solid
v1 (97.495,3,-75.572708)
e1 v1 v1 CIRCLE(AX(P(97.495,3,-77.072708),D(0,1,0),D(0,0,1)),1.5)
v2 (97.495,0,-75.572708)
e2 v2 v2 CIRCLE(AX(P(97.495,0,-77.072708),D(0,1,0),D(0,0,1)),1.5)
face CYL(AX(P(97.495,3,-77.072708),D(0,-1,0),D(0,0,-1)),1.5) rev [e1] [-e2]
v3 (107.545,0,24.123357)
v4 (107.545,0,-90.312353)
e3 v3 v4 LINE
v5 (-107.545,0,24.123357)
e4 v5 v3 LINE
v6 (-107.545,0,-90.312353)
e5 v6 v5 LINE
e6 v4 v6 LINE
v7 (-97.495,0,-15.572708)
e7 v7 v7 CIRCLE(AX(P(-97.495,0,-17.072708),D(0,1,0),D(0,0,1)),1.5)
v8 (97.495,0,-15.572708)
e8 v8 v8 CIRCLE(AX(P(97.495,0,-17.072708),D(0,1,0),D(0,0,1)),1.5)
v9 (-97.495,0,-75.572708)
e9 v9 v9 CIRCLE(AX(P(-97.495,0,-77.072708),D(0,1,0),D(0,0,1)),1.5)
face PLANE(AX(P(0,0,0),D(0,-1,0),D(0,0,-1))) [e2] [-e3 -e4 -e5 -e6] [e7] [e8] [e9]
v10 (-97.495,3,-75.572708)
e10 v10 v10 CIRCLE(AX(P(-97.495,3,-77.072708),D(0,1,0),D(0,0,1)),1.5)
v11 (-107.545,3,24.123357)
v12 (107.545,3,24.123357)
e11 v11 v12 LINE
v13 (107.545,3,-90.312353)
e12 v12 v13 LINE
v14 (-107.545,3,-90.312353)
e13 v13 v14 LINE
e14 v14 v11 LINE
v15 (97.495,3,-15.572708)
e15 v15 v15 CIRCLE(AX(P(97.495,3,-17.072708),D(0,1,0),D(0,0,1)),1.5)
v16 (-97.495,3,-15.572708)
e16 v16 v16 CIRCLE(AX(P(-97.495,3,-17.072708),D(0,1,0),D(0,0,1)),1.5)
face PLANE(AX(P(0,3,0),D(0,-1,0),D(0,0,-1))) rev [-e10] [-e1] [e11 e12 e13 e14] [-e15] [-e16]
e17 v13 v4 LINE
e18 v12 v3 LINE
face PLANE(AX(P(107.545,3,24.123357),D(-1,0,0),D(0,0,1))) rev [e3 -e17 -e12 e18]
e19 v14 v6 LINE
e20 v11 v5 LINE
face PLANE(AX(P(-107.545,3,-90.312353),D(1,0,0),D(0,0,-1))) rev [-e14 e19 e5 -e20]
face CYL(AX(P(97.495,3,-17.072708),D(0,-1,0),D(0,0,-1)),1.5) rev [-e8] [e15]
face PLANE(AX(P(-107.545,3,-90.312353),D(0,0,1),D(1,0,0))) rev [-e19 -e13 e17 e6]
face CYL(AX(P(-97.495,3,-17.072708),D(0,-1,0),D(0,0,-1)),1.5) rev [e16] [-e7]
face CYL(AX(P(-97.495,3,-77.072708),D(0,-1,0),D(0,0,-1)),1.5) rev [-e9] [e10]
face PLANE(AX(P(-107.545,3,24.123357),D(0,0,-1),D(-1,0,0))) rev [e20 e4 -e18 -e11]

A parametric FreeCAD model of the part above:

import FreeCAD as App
import Part
import Sketcher

doc = App.newDocument("Part")
body = doc.addObject("PartDesign::Body", "Body")

sketch1 = doc.addObject("Sketcher::SketchObject", "Sketch")
body.addObject(sketch1)
sketch1.AttachmentSupport = (doc.XZ_Plane, [""])
sketch1.MapMode = "FlatFace"
sketch1.addGeometry([
    Part.LineSegment(App.Vector(-107.5, -90.3, 0), App.Vector(-107.5, 24.1, 0)),
    Part.LineSegment(App.Vector(-107.5, 24.1, 0), App.Vector(107.5, 24.1, 0)),
    Part.LineSegment(App.Vector(107.5, 24.1, 0), App.Vector(107.5, -90.3, 0)),
    Part.LineSegment(App.Vector(107.5, -90.3, 0), App.Vector(-107.5, -90.3, 0)),
    Part.Circle(App.Vector(-97.5, -17.1, 0), App.Vector(0, 0, 1), 1.5),
    Part.Circle(App.Vector(97.5, -17.1, 0), App.Vector(0, 0, 1), 1.5),
    Part.Circle(App.Vector(-97.5, -77.1, 0), App.Vector(0, 0, 1), 1.5),
    Part.Circle(App.Vector(97.5, -77.1, 0), App.Vector(0, 0, 1), 1.5),
], False)
sketch1.addConstraint([
    Sketcher.Constraint("Coincident", 0, 2, 1, 1),
    Sketcher.Constraint("Coincident", 1, 2, 2, 1),
    Sketcher.Constraint("Coincident", 2, 2, 3, 1),
    Sketcher.Constraint("Coincident", 3, 2, 0, 1),
    Sketcher.Constraint("Vertical", 0),
    Sketcher.Constraint("Horizontal", 1),
    Sketcher.Constraint("Vertical", 2),
    Sketcher.Constraint("Horizontal", 3),
    Sketcher.Constraint("Equal", 4, 5),
    Sketcher.Constraint("Equal", 5, 6),
    Sketcher.Constraint("Equal", 6, 7),
    Sketcher.Constraint("Symmetric", 4, 3, 5, 3, -2),
    Sketcher.Constraint("Symmetric", 6, 3, 7, 3, -2),
    Sketcher.Constraint("Vertical", 4, 3, 6, 3),
    Sketcher.Constraint("Diameter", 4, 3.0),
    Sketcher.Constraint("DistanceY", 6, 3, 4, 3, 60.0),
    Sketcher.Constraint("DistanceX", 1, 1, 1, 2, 215.09),
    Sketcher.Constraint("DistanceX", 4, 3, 5, 3, 194.99),
    Sketcher.Constraint("DistanceX", 0, 2, 4, 3, 10.05),
    Sketcher.Constraint("DistanceY", 0, 1, 0, 2, 114.43571),
    Sketcher.Constraint("DistanceY", 4, 3, -1, 1, 17.072708),
    Sketcher.Constraint("DistanceY", -1, 1, 0, 2, 24.123357),
])
pad1 = doc.addObject("PartDesign::Pad", "Pad")
body.addObject(pad1)
pad1.Profile = sketch1
pad1.Length = 3
pad1.Reversed = True

doc.recompute()
